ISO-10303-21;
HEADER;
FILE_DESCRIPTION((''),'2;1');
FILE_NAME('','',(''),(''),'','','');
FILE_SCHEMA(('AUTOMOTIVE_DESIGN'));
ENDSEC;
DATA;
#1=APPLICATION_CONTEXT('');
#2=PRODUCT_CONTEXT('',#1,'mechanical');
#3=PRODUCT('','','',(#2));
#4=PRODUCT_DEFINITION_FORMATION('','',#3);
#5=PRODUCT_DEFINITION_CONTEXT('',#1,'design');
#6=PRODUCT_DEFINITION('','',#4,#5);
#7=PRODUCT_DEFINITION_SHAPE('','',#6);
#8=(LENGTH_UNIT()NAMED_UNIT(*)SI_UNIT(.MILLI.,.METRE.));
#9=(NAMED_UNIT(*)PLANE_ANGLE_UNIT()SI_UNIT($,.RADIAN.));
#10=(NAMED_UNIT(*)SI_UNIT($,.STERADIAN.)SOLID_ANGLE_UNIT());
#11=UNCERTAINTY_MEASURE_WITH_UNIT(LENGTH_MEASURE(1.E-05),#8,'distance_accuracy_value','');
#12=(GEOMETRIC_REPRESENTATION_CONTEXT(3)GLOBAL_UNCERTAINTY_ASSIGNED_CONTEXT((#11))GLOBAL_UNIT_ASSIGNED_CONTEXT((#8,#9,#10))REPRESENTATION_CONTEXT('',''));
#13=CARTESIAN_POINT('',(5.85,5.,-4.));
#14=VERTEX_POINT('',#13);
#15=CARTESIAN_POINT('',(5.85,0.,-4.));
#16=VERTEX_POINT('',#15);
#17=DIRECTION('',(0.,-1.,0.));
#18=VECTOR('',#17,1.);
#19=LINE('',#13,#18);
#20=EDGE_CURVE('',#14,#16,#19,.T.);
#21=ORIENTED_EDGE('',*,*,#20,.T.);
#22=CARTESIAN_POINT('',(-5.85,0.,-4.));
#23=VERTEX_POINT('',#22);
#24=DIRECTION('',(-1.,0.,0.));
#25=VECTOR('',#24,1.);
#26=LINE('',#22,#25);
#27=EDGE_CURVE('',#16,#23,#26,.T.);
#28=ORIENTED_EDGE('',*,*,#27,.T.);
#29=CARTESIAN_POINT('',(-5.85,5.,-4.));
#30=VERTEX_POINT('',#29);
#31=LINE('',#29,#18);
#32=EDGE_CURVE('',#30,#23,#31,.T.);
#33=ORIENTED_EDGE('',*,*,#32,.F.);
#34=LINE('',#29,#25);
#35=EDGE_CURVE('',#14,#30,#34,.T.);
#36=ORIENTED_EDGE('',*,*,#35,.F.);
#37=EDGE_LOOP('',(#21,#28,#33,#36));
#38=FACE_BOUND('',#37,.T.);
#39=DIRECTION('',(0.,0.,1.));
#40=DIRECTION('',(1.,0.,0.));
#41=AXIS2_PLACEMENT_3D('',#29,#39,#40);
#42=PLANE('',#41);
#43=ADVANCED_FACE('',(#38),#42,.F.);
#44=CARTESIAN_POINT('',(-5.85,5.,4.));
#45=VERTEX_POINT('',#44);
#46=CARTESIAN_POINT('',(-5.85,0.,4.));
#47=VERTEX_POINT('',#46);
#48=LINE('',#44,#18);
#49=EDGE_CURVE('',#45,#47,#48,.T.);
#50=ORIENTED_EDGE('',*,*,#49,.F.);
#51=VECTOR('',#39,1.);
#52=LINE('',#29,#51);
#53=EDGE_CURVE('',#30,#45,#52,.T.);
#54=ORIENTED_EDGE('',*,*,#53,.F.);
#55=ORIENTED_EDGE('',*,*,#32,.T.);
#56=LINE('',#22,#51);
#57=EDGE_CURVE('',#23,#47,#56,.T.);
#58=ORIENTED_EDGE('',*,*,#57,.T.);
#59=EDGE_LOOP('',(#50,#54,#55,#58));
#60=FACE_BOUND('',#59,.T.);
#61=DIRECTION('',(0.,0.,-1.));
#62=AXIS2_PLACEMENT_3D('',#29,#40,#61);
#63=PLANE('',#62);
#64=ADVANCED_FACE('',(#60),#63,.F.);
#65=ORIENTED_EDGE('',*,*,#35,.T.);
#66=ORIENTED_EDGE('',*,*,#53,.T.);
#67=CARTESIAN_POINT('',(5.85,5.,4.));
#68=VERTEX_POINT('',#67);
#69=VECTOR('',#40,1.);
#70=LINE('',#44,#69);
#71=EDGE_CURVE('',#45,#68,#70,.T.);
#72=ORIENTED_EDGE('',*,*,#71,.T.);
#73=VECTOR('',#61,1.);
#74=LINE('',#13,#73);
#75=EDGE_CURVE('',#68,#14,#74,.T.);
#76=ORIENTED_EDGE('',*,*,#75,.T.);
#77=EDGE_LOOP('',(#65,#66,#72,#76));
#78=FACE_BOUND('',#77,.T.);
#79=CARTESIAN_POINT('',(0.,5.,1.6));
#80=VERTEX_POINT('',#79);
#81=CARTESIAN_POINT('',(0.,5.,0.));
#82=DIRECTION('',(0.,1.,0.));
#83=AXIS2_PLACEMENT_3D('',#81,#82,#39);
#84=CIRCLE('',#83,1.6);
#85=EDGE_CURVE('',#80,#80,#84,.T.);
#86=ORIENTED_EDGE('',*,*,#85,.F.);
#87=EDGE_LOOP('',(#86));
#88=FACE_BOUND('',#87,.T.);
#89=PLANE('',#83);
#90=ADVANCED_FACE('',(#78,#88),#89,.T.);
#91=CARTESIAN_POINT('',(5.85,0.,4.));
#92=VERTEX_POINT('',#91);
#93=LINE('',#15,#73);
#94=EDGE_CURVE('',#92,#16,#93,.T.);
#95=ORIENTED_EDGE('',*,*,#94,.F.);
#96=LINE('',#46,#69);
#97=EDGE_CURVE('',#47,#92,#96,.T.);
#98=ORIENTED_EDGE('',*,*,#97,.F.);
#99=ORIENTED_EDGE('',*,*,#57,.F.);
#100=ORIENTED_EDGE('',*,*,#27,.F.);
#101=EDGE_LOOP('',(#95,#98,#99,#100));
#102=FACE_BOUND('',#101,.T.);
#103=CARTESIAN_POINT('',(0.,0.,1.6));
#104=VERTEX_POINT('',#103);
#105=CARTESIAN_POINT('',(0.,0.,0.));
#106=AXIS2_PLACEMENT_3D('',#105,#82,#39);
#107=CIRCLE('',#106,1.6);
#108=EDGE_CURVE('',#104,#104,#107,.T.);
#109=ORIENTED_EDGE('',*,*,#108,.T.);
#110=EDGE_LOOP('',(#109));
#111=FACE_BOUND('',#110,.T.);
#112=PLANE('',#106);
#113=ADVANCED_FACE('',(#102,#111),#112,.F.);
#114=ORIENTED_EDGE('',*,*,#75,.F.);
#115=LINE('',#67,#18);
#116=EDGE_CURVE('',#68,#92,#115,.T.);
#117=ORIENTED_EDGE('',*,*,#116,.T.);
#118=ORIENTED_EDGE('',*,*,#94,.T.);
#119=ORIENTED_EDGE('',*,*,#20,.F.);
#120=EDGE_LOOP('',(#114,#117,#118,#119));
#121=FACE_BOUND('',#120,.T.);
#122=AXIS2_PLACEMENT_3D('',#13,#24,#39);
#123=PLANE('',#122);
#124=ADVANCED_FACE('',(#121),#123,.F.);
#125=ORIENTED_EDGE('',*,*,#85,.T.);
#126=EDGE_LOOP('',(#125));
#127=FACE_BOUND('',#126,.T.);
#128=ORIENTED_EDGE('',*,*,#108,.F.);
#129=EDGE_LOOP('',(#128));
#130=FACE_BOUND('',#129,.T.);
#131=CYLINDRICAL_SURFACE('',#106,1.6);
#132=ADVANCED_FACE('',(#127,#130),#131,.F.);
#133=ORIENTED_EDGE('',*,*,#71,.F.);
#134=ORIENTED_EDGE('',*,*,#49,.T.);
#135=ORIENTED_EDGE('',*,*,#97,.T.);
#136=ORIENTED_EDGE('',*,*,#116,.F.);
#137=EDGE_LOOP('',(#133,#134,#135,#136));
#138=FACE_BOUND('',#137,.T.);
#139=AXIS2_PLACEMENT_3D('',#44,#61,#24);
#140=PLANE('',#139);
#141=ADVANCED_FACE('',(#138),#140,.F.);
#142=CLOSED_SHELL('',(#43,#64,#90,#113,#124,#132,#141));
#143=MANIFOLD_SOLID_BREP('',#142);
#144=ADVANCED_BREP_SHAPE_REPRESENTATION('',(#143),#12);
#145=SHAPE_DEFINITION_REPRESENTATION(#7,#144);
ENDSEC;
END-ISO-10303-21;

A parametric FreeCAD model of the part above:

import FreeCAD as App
import Part
import Sketcher
Q = App.Units.Quantity


def add_polygon(sketch, points):
    """Adds a closed chain of lines whose ends are joined by coincident constraints."""
    first, n = sketch.GeometryCount, len(points)
    for a, b in zip(points, points[1:] + points[:1]):
        sketch.addGeometry(Part.LineSegment(App.Vector(*a, 0), App.Vector(*b, 0)), False)
    for i in range(n):
        sketch.addConstraint(Sketcher.Constraint("Coincident", first + i, 2, first + (i + 1) % n, 1))

doc = App.newDocument("Part")
body = doc.addObject("PartDesign::Body", "Body")

sketch1 = body.newObject("Sketcher::SketchObject", "Sketch")
sketch1.AttachmentSupport = (doc.getObject("XZ_Plane"), [""])
sketch1.MapMode = "FlatFace"
add_polygon(sketch1, [(-5.85, -4), (-5.85, 4), (5.85, 4), (5.85, -4)])
sketch1.addConstraint([
    Sketcher.Constraint("Vertical", 0),
    Sketcher.Constraint("Horizontal", 1),
    Sketcher.Constraint("Vertical", 2),
    Sketcher.Constraint("Horizontal", 3),
    Sketcher.Constraint("Symmetric", 0, 2, 2, 2, -1, 1),
    Sketcher.Constraint("DistanceY", 0, 1, 0, 2, Q("8 mm")),
    Sketcher.Constraint("DistanceX", 1, 1, 1, 2, Q("11.7 mm")),
])
pad1 = body.newObject("PartDesign::Pad", "Pad")
pad1.Profile = sketch1
pad1.Length = 5
pad1.Reversed = True

sketch2 = body.newObject("Sketcher::SketchObject", "Sketch001")
sketch2.AttachmentSupport = (doc.getObject("XZ_Plane"), [""])
sketch2.MapMode = "FlatFace"
sketch2.AttachmentOffset = App.Placement(App.Vector(0, 0, -5), App.Rotation())
sketch2.addGeometry(Part.Circle(App.Vector(0, 0, 0), App.Vector(0, 0, 1), 1.6), False)
sketch2.addConstraint([
    Sketcher.Constraint("Coincident", 0, 3, -1, 1),
    Sketcher.Constraint("Diameter", 0, Q("3.2 mm")),
])
pocket1 = body.newObject("PartDesign::Pocket", "Pocket")
pocket1.Profile = sketch2
pocket1.Type = "ThroughAll"
pocket1.Reversed = True

doc.recompute()
